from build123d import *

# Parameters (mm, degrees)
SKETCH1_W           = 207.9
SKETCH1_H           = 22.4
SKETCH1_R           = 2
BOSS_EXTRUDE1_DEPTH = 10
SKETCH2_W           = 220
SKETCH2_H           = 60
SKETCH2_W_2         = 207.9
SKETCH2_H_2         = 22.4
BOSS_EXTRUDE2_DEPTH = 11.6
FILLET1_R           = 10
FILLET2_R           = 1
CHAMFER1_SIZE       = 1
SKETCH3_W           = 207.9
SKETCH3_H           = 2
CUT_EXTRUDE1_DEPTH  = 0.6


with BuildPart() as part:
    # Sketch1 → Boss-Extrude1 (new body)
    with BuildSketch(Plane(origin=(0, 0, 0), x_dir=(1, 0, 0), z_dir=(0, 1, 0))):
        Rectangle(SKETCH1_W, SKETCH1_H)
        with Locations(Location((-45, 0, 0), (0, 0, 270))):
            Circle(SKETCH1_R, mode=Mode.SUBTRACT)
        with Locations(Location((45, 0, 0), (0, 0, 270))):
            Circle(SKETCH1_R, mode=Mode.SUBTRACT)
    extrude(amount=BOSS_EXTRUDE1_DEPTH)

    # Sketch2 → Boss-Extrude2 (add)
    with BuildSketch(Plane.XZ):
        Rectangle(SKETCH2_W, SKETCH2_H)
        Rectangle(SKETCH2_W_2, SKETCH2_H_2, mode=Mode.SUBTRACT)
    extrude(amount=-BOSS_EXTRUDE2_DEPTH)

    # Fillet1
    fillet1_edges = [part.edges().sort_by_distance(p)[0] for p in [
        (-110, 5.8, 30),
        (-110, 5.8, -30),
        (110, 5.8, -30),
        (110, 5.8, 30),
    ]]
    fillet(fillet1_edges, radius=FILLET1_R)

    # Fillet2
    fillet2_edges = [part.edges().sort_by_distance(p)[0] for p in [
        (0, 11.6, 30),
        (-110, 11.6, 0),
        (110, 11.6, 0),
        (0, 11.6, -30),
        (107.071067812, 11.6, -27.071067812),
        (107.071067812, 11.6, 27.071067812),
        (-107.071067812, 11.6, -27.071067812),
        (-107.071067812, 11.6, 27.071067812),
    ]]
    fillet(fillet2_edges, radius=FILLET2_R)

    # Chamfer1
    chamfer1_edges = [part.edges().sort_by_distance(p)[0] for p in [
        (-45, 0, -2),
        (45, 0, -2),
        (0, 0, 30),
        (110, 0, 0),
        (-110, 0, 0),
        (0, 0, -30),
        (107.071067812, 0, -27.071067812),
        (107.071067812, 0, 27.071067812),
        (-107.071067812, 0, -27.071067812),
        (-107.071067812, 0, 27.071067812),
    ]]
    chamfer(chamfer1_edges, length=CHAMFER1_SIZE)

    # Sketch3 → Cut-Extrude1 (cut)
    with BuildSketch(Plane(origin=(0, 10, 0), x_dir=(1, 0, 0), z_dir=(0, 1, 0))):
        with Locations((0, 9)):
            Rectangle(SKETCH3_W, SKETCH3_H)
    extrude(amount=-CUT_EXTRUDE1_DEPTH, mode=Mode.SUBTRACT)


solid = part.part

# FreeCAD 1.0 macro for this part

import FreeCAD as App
import Part
import Sketcher
from FreeCAD import Vector


def edges_at(feature, points):
    """Names of the edges that pass closest to the given points."""
    edges = feature.Shape.Edges
    near = lambda p: min(range(len(edges)), key=lambda i: edges[i].distToShape(Part.Vertex(*p))[0])
    return sorted({f"Edge{near(p) + 1}" for p in points})

doc = App.newDocument("Part")
body = doc.addObject("PartDesign::Body", "Body")

sketch1 = body.newObject("Sketcher::SketchObject", "Sketch")
sketch1.AttachmentSupport = (doc.getObject("XZ_Plane"), [""])
sketch1.MapMode = "FlatFace"
sketch1.addGeometry(Part.LineSegment(Vector(-104, -11.2, 0), Vector(-104, 11.2, 0)), False)
sketch1.addGeometry(Part.LineSegment(Vector(-104, 11.2, 0), Vector(104, 11.2, 0)), False)
sketch1.addGeometry(Part.LineSegment(Vector(104, 11.2, 0), Vector(104, -11.2, 0)), False)
sketch1.addGeometry(Part.LineSegment(Vector(104, -11.2, 0), Vector(-104, -11.2, 0)), False)
sketch1.addGeometry(Part.Circle(Vector(-45, 0, 0), Vector(0, 0, 1), 2), False)
sketch1.addGeometry(Part.Circle(Vector(45, 0, 0), Vector(0, 0, 1), 2), False)
sketch1.addConstraint(Sketcher.Constraint("Coincident", 0, 2, 1, 1))
sketch1.addConstraint(Sketcher.Constraint("Coincident", 1, 2, 2, 1))
sketch1.addConstraint(Sketcher.Constraint("Coincident", 2, 2, 3, 1))
sketch1.addConstraint(Sketcher.Constraint("Coincident", 3, 2, 0, 1))
sketch1.addConstraint(Sketcher.Constraint("Vertical", 0))
sketch1.addConstraint(Sketcher.Constraint("Horizontal", 1))
sketch1.addConstraint(Sketcher.Constraint("Vertical", 2))
sketch1.addConstraint(Sketcher.Constraint("Horizontal", 3))
sketch1.addConstraint(Sketcher.Constraint("Equal", 4, 5))
sketch1.addConstraint(Sketcher.Constraint("Symmetric", 4, 3, 5, 3, -1, 1))
sketch1.addConstraint(Sketcher.Constraint("Symmetric", 0, 2, 2, 2, -1, 1))
sketch1.addConstraint(Sketcher.Constraint("PointOnObject", 4, 3, -1))
sketch1.addConstraint(Sketcher.Constraint("Diameter", 4, 4.0))
sketch1.addConstraint(Sketcher.Constraint("DistanceX", 1, 1, 1, 2, 207.9))
sketch1.addConstraint(Sketcher.Constraint("DistanceY", 0, 1, 0, 2, 22.4))
sketch1.addConstraint(Sketcher.Constraint("DistanceX", 4, 3, -1, 1, 45.0))
pad1 = body.newObject("PartDesign::Pad", "Pad")
pad1.Profile = sketch1
pad1.Length = 10
pad1.Reversed = True

sketch2 = body.newObject("Sketcher::SketchObject", "Sketch001")
sketch2.AttachmentSupport = (doc.getObject("XZ_Plane"), [""])
sketch2.MapMode = "FlatFace"
sketch2.addGeometry(Part.LineSegment(Vector(-110, 30, 0), Vector(-110, -30, 0)), False)
sketch2.addGeometry(Part.LineSegment(Vector(-110, -30, 0), Vector(110, -30, 0)), False)
sketch2.addGeometry(Part.LineSegment(Vector(110, -30, 0), Vector(110, 30, 0)), False)
sketch2.addGeometry(Part.LineSegment(Vector(110, 30, 0), Vector(-110, 30, 0)), False)
sketch2.addGeometry(Part.LineSegment(Vector(104, -11, 0), Vector(-104, -11, 0)), False)
sketch2.addGeometry(Part.LineSegment(Vector(-104, -11, 0), Vector(-104, 11, 0)), False)
sketch2.addGeometry(Part.LineSegment(Vector(-104, 11, 0), Vector(104, 11, 0)), False)
sketch2.addGeometry(Part.LineSegment(Vector(104, 11, 0), Vector(104, -11, 0)), False)
sketch2.addConstraint(Sketcher.Constraint("Coincident", 0, 2, 1, 1))
sketch2.addConstraint(Sketcher.Constraint("Coincident", 1, 2, 2, 1))
sketch2.addConstraint(Sketcher.Constraint("Coincident", 2, 2, 3, 1))
sketch2.addConstraint(Sketcher.Constraint("Coincident", 3, 2, 0, 1))
sketch2.addConstraint(Sketcher.Constraint("Coincident", 4, 2, 5, 1))
sketch2.addConstraint(Sketcher.Constraint("Coincident", 5, 2, 6, 1))
sketch2.addConstraint(Sketcher.Constraint("Coincident", 6, 2, 7, 1))
sketch2.addConstraint(Sketcher.Constraint("Coincident", 7, 2, 4, 1))
sketch2.addConstraint(Sketcher.Constraint("Vertical", 0))
sketch2.addConstraint(Sketcher.Constraint("Horizontal", 1))
sketch2.addConstraint(Sketcher.Constraint("Vertical", 2))
sketch2.addConstraint(Sketcher.Constraint("Horizontal", 3))
sketch2.addConstraint(Sketcher.Constraint("Horizontal", 4))
sketch2.addConstraint(Sketcher.Constraint("Vertical", 5))
sketch2.addConstraint(Sketcher.Constraint("Horizontal", 6))
sketch2.addConstraint(Sketcher.Constraint("Vertical", 7))
sketch2.addConstraint(Sketcher.Constraint("Symmetric", 0, 2, 2, 2, -1, 1))
sketch2.addConstraint(Sketcher.Constraint("Symmetric", 4, 2, 6, 2, -1, 1))
sketch2.addConstraint(Sketcher.Constraint("DistanceX", 1, 1, 1, 2, 220.0))
sketch2.addConstraint(Sketcher.Constraint("DistanceY", 0, 2, 0, 1, 60.0))
sketch2.addConstraint(Sketcher.Constraint("DistanceX", 4, 2, 4, 1, 207.9))
sketch2.addConstraint(Sketcher.Constraint("DistanceY", 5, 1, 5, 2, 22.4))
pad2 = body.newObject("PartDesign::Pad", "Pad001")
pad2.Profile = sketch2
pad2.Length = 11.6
pad2.Reversed = True
doc.recompute()

fillet = body.newObject("PartDesign::Fillet", "Fillet")
fillet.Base = (pad2, edges_at(pad2, [
    (-110, 5.8, 30),
    (-110, 5.8, -30),
    (110, 5.8, -30),
    (110, 5.8, 30),
]))
fillet.Radius = 10
doc.recompute()

fillet2 = body.newObject("PartDesign::Fillet", "Fillet001")
fillet2.Base = (fillet, edges_at(fillet, [
    (0, 11.6, 30),
    (-110, 11.6, 0),
    (110, 11.6, 0),
    (0, 11.6, -30),
    (107.071, 11.6, -27.071),
    (107.071, 11.6, 27.071),
    (-107.071, 11.6, -27.071),
    (-107.071, 11.6, 27.071),
]))
fillet2.Radius = 1
doc.recompute()

chamfer = body.newObject("PartDesign::Chamfer", "Chamfer")
chamfer.Base = (fillet2, edges_at(fillet2, [
    (-45, 0, -2),
    (45, 0, -2),
    (0, 0, 30),
    (110, 0, 0),
    (-110, 0, 0),
    (0, 0, -30),
    (107.071, 0, -27.071),
    (107.071, 0, 27.071),
    (-107.071, 0, -27.071),
    (-107.071, 0, 27.071),
]))
chamfer.Size = 1

sketch3 = body.newObject("Sketcher::SketchObject", "Sketch002")
sketch3.AttachmentSupport = (doc.getObject("XZ_Plane"), [""])
sketch3.MapMode = "FlatFace"
sketch3.AttachmentOffset = App.Placement(Vector(0, 0, -10), App.Rotation())
sketch3.addGeometry(Part.LineSegment(Vector(-104, -10, 0), Vector(-104, -8, 0)), False)
sketch3.addGeometry(Part.LineSegment(Vector(-104, -8, 0), Vector(104, -8, 0)), False)
sketch3.addGeometry(Part.LineSegment(Vector(104, -8, 0), Vector(104, -10, 0)), False)
sketch3.addGeometry(Part.LineSegment(Vector(104, -10, 0), Vector(-104, -10, 0)), False)
sketch3.addConstraint(Sketcher.Constraint("Coincident", 0, 2, 1, 1))
sketch3.addConstraint(Sketcher.Constraint("Coincident", 1, 2, 2, 1))
sketch3.addConstraint(Sketcher.Constraint("Coincident", 2, 2, 3, 1))
sketch3.addConstraint(Sketcher.Constraint("Coincident", 3, 2, 0, 1))
sketch3.addConstraint(Sketcher.Constraint("Vertical", 0))
sketch3.addConstraint(Sketcher.Constraint("Horizontal", 1))
sketch3.addConstraint(Sketcher.Constraint("Vertical", 2))
sketch3.addConstraint(Sketcher.Constraint("Horizontal", 3))
sketch3.addConstraint(Sketcher.Constraint("DistanceY", 0, 1, 0, 2, 2.0))
sketch3.addConstraint(Sketcher.Constraint("DistanceX", 1, 1, 1, 2, 207.9))
sketch3.addConstraint(Sketcher.Constraint("DistanceY", 0, 2, -1, 1, 8.0))
sketch3.addConstraint(Sketcher.Constraint("DistanceX", 0, 2, -1, 1, 103.95))
pocket1 = body.newObject("PartDesign::Pocket", "Pocket")
pocket1.Profile = sketch3
pocket1.Length = 0.6
pocket1.Reversed = True

doc.recompute()
